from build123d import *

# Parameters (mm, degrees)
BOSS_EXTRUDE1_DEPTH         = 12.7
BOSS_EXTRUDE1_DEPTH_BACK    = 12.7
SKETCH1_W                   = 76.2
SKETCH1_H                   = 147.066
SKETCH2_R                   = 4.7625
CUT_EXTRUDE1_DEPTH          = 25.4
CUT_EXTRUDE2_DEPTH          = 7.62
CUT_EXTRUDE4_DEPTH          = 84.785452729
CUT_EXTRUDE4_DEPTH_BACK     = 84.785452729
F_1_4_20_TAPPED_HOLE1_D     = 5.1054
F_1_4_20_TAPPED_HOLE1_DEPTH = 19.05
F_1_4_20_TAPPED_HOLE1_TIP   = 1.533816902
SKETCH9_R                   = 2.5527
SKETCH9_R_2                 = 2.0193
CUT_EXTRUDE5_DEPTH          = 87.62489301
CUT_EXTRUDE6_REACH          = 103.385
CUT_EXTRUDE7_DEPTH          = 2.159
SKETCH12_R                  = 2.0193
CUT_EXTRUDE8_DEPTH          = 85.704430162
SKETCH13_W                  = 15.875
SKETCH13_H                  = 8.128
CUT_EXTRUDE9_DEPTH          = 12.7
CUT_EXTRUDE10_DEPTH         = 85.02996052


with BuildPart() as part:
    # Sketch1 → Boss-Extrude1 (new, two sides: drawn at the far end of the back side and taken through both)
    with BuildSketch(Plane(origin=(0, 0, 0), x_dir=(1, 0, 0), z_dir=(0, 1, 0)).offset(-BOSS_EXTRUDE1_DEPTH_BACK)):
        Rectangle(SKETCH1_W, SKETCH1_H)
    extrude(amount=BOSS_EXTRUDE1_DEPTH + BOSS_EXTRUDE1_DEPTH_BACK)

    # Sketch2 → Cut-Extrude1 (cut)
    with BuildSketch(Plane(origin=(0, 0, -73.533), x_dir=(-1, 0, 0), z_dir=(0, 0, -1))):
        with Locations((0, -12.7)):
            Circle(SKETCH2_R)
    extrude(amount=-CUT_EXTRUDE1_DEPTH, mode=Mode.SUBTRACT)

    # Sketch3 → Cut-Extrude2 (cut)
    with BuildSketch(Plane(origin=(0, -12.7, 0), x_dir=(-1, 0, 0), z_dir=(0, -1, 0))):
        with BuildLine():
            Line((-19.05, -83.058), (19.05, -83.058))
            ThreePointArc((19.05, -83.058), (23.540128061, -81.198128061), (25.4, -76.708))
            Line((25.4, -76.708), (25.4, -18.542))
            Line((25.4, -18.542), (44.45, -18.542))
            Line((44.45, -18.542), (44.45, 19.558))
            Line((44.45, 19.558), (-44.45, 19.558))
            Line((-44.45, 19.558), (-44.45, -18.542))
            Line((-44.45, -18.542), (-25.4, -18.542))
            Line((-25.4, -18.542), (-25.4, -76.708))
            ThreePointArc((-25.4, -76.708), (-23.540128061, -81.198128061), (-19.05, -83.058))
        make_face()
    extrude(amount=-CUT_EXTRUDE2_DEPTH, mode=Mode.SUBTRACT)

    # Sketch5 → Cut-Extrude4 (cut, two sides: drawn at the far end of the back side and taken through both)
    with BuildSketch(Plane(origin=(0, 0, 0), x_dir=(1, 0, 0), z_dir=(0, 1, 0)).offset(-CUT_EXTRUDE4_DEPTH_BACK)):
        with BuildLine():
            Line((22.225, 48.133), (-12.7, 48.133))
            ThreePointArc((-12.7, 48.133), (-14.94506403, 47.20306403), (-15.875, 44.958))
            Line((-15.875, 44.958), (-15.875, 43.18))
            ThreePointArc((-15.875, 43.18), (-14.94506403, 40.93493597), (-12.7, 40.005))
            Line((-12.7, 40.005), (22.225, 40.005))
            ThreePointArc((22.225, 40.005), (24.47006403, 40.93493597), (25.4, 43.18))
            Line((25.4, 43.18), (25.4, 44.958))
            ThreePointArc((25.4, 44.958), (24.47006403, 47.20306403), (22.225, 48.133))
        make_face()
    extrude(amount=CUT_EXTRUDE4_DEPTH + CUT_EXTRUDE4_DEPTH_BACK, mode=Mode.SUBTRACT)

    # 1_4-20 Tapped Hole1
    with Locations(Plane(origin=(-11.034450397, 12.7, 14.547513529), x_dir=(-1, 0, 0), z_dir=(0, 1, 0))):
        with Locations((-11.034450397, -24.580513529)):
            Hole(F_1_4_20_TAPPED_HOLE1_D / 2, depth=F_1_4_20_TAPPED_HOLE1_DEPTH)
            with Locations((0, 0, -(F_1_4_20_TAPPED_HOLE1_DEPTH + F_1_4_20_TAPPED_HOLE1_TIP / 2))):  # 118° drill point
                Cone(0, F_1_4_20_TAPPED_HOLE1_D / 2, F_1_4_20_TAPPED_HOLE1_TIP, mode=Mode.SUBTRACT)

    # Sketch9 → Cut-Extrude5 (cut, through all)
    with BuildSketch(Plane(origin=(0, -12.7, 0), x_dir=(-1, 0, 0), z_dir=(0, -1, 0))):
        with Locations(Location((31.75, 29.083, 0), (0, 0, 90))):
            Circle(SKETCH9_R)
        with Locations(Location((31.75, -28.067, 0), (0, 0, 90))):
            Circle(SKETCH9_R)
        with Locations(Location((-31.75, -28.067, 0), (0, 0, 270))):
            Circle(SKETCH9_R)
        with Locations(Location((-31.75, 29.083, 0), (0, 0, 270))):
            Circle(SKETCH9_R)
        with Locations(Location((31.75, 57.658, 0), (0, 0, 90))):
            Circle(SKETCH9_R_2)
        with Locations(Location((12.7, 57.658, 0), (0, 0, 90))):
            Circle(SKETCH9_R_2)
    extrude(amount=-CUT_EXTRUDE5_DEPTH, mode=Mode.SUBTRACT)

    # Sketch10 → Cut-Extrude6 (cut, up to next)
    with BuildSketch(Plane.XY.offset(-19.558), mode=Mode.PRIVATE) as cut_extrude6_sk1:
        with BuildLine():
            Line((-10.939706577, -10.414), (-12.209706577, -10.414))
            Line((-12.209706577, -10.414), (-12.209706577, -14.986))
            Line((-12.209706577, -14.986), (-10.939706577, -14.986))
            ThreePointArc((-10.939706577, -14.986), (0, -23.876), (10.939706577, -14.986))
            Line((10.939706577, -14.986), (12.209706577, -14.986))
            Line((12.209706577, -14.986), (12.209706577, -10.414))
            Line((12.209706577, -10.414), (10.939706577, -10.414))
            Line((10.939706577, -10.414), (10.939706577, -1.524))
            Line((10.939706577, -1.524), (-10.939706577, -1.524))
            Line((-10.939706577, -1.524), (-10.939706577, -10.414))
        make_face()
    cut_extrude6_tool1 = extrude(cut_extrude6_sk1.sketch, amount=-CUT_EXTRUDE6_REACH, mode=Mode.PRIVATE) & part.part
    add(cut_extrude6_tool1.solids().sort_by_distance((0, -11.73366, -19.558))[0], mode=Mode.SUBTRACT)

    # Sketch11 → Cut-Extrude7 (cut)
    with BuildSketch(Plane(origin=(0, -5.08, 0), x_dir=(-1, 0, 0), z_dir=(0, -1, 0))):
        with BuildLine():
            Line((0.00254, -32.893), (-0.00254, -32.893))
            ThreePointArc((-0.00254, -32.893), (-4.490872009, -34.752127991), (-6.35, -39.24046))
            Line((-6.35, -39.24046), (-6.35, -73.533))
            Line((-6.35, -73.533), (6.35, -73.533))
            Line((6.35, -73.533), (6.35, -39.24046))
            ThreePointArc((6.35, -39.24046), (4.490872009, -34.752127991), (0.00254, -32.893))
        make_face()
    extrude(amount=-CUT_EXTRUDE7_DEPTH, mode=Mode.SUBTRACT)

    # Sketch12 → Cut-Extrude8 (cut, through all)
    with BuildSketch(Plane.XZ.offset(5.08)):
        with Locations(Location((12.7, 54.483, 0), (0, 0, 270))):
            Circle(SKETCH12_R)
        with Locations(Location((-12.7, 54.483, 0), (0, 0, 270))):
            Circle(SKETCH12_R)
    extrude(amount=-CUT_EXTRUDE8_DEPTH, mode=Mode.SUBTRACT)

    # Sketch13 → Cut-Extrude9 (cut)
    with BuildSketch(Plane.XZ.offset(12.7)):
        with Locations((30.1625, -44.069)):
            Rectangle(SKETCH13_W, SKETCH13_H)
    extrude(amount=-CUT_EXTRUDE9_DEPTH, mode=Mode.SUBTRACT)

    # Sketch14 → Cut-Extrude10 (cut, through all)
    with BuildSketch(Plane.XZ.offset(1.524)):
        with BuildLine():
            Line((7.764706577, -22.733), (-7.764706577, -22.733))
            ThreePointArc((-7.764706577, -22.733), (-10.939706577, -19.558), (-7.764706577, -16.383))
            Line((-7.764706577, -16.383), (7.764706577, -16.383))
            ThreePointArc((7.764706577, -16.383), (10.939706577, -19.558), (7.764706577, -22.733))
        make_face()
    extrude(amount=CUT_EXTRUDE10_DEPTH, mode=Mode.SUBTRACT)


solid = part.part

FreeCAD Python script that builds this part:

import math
import FreeCAD as App
import Part
import Sketcher
from FreeCAD import Vector
Q = App.Units.Quantity


def add_polygon(sketch, points):
    """Adds a closed chain of lines whose ends are joined by coincident constraints."""
    first, n = sketch.GeometryCount, len(points)
    for a, b in zip(points, points[1:] + points[:1]):
        sketch.addGeometry(Part.LineSegment(App.Vector(*a, 0), App.Vector(*b, 0)), False)
    for i in range(n):
        sketch.addConstraint(Sketcher.Constraint("Coincident", first + i, 2, first + (i + 1) % n, 1))

doc = App.newDocument("Part")
body = doc.addObject("PartDesign::Body", "Body")

sketch1 = doc.addObject("Sketcher::SketchObject", "Sketch")
body.addObject(sketch1)
sketch1.AttachmentSupport = (doc.XZ_Plane, [""])
sketch1.MapMode = "FlatFace"
add_polygon(sketch1, [(-38.1, -73.533), (-38.1, 73.533), (38.1, 73.533), (38.1, -73.533)])
sketch1.addConstraint([
    Sketcher.Constraint("Vertical", 0),
    Sketcher.Constraint("Horizontal", 1),
    Sketcher.Constraint("Vertical", 2),
    Sketcher.Constraint("Horizontal", 3),
    Sketcher.Constraint("Symmetric", 0, 2, 2, 2, -1, 1),
    Sketcher.Constraint("DistanceX", 1, 1, 1, 2, Q("3 in")),
    Sketcher.Constraint("DistanceY", 0, 1, 0, 2, Q("5.79 in")),
])
pad1 = doc.addObject("PartDesign::Pad", "Pad")
body.addObject(pad1)
pad1.Profile = sketch1
pad1.Type = "TwoLengths"
pad1.Length = Q("0.5 in")
pad1.Length2 = Q("0.5 in")
pad1.Reversed = True

sketch2 = doc.addObject("Sketcher::SketchObject", "Sketch001")
body.addObject(sketch2)
sketch2.AttachmentSupport = (doc.XY_Plane, [""])
sketch2.MapMode = "FlatFace"
sketch2.AttachmentOffset = App.Placement(Vector(0, 0, -2.895 * 25.4), App.Rotation())
sketch2.addGeometry(Part.Circle(Vector(0, -12.7, 0), Vector(0, 0, 1), 4.7625), False)
sketch2.addConstraint([
    Sketcher.Constraint("PointOnObject", 0, 3, -2),
    Sketcher.Constraint("Diameter", 0, Q("0.375 in")),
    Sketcher.Constraint("DistanceY", 0, 3, -1, 1, Q("0.5 in")),
])
pocket1 = doc.addObject("PartDesign::Pocket", "Pocket")
body.addObject(pocket1)
pocket1.Profile = sketch2
pocket1.Length = Q("1 in")
pocket1.Reversed = True

sketch3 = doc.addObject("Sketcher::SketchObject", "Sketch002")
body.addObject(sketch3)
sketch3.AttachmentSupport = (doc.XZ_Plane, [""])
sketch3.MapMode = "FlatFace"
sketch3.AttachmentOffset = App.Placement(Vector(0, 0, 0.5 * 25.4), App.Rotation())
sketch3.addGeometry([
    Part.LineSegment(Vector(19.05, 83.058, 0), Vector(-19.05, 83.058, 0)),
    Part.ArcOfCircle(Part.Circle(Vector(-19.05, 76.708, 0), Vector(0, 0, 1), 6.35), math.radians(90), math.radians(180)),
    Part.LineSegment(Vector(-25.4, 76.708, 0), Vector(-25.4, 18.542, 0)),
    Part.LineSegment(Vector(-25.4, 18.542, 0), Vector(-44.45, 18.542, 0)),
    Part.LineSegment(Vector(-44.45, 18.542, 0), Vector(-44.45, -19.558, 0)),
    Part.LineSegment(Vector(-44.45, -19.558, 0), Vector(44.45, -19.558, 0)),
    Part.LineSegment(Vector(44.45, -19.558, 0), Vector(44.45, 18.542, 0)),
    Part.LineSegment(Vector(44.45, 18.542, 0), Vector(25.4, 18.542, 0)),
    Part.LineSegment(Vector(25.4, 18.542, 0), Vector(25.4, 76.708, 0)),
    Part.ArcOfCircle(Part.Circle(Vector(19.05, 76.708, 0), Vector(0, 0, 1), 6.35), math.radians(0), math.radians(90)),
], False)
sketch3.addConstraint([
    Sketcher.Constraint("Tangent", 0, 2, 1, 1),
    Sketcher.Constraint("Tangent", 1, 2, 2, 1),
    Sketcher.Constraint("Coincident", 2, 2, 3, 1),
    Sketcher.Constraint("Coincident", 3, 2, 4, 1),
    Sketcher.Constraint("Coincident", 4, 2, 5, 1),
    Sketcher.Constraint("Coincident", 5, 2, 6, 1),
    Sketcher.Constraint("Coincident", 6, 2, 7, 1),
    Sketcher.Constraint("Coincident", 7, 2, 8, 1),
    Sketcher.Constraint("Tangent", 8, 2, 9, 1),
    Sketcher.Constraint("Tangent", 9, 2, 0, 1),
    Sketcher.Constraint("Horizontal", 0),
    Sketcher.Constraint("Vertical", 2),
    Sketcher.Constraint("Horizontal", 3),
    Sketcher.Constraint("Vertical", 4),
    Sketcher.Constraint("Horizontal", 5),
    Sketcher.Constraint("Vertical", 6),
    Sketcher.Constraint("Horizontal", 7),
    Sketcher.Constraint("Vertical", 8),
    Sketcher.Constraint("Equal", 1, 9),
    Sketcher.Constraint("Symmetric", 3, 2, 6, 2, -2),
    Sketcher.Constraint("Equal", 3, 7),
    Sketcher.Constraint("Equal", 0, 4),
    Sketcher.Constraint("Radius", 1, Q("0.25 in")),
    Sketcher.Constraint("DistanceX", 0, 2, 0, 1, Q("1.5 in")),
    Sketcher.Constraint("DistanceX", 5, 1, 5, 2, Q("3.5 in")),
    Sketcher.Constraint("DistanceY", 2, 2, 2, 1, Q("2.29 in")),
    Sketcher.Constraint("DistanceY", -1, 1, 1, 3, Q("3.02 in")),
])
pocket2 = doc.addObject("PartDesign::Pocket", "Pocket001")
body.addObject(pocket2)
pocket2.Profile = sketch3
pocket2.Length = Q("0.3 in")

sketch4 = doc.addObject("Sketcher::SketchObject", "Sketch003")
body.addObject(sketch4)
sketch4.AttachmentSupport = (doc.XZ_Plane, [""])
sketch4.MapMode = "FlatFace"
sketch4.addGeometry([
    Part.LineSegment(Vector(22.225, -48.133, 0), Vector(-12.7, -48.133, 0)),
    Part.ArcOfCircle(Part.Circle(Vector(-12.7, -44.958, 0), Vector(0, 0, 1), 3.175), math.radians(-180), math.radians(-90)),
    Part.LineSegment(Vector(-15.875, -44.958, 0), Vector(-15.875, -43.18, 0)),
    Part.ArcOfCircle(Part.Circle(Vector(-12.7, -43.18, 0), Vector(0, 0, 1), 3.175), math.radians(90), math.radians(180)),
    Part.LineSegment(Vector(-12.7, -40.005, 0), Vector(22.225, -40.005, 0)),
    Part.ArcOfCircle(Part.Circle(Vector(22.225, -43.18, 0), Vector(0, 0, 1), 3.175), math.radians(0), math.radians(90)),
    Part.LineSegment(Vector(25.4, -43.18, 0), Vector(25.4, -44.958, 0)),
    Part.ArcOfCircle(Part.Circle(Vector(22.225, -44.958, 0), Vector(0, 0, 1), 3.175), math.radians(-90), math.radians(0)),
], False)
sketch4.addConstraint([
    Sketcher.Constraint("Tangent", 0, 2, 1, 2),
    Sketcher.Constraint("Tangent", 1, 1, 2, 1),
    Sketcher.Constraint("Tangent", 2, 2, 3, 2),
    Sketcher.Constraint("Tangent", 3, 1, 4, 1),
    Sketcher.Constraint("Tangent", 4, 2, 5, 2),
    Sketcher.Constraint("Tangent", 5, 1, 6, 1),
    Sketcher.Constraint("Tangent", 6, 2, 7, 2),
    Sketcher.Constraint("Tangent", 7, 1, 0, 1),
    Sketcher.Constraint("Horizontal", 0),
    Sketcher.Constraint("Vertical", 2),
    Sketcher.Constraint("Horizontal", 4),
    Sketcher.Constraint("Vertical", 6),
    Sketcher.Constraint("Equal", 1, 3),
    Sketcher.Constraint("Equal", 3, 5),
    Sketcher.Constraint("Equal", 5, 7),
    Sketcher.Constraint("DistanceX", -1, 1, 5, 1, Q("1 in")),
    Sketcher.Constraint("Radius", 1, Q("0.125 in")),
    Sketcher.Constraint("DistanceY", 2, 1, 2, 2, Q("0.07 in")),
    Sketcher.Constraint("DistanceX", 1, 3, -1, 1, Q("0.5 in")),
    Sketcher.Constraint("DistanceY", 3, 3, -1, 1, Q("1.7 in")),
])
pocket3 = doc.addObject("PartDesign::Pocket", "Pocket002")
body.addObject(pocket3)
pocket3.Profile = sketch4
pocket3.Type = "ThroughAll"
pocket3.Midplane = True

sketch5 = doc.addObject("Sketcher::SketchObject", "Sketch004")
body.addObject(sketch5)
sketch5.AttachmentSupport = (doc.XZ_Plane, [""])
sketch5.MapMode = "FlatFace"
sketch5.AttachmentOffset = App.Placement(Vector(0, 0, -0.5 * 25.4), App.Rotation())
sketch5.addGeometry(Part.Circle(Vector(0, -10.033, 0), Vector(0, 0, 1), 2.5527), False)
sketch5.addConstraint([
    Sketcher.Constraint("PointOnObject", 0, 3, -2),
    Sketcher.Constraint("Diameter", 0, Q("0.201 in")),
    Sketcher.Constraint("DistanceY", 0, 3, -1, 1, Q("0.395 in")),
])
doc.recompute()
hole = doc.addObject("PartDesign::Hole", "Hole")
body.addObject(hole)
hole.Profile = sketch5
hole.ThreadType = "None"
hole.Diameter = Q("0.201 in")
hole.DepthType = "Dimension"
hole.Depth = Q("0.75 in")
hole.DrillPoint = "Angled"
hole.DrillPointAngle = 118
hole.Reversed = True

sketch6 = doc.addObject("Sketcher::SketchObject", "Sketch005")
body.addObject(sketch6)
sketch6.AttachmentSupport = (doc.XZ_Plane, [""])
sketch6.MapMode = "FlatFace"
sketch6.AttachmentOffset = App.Placement(Vector(0, 0, 0.5 * 25.4), App.Rotation())
sketch6.addGeometry([
    Part.Circle(Vector(-31.75, -29.083, 0), Vector(0, 0, 1), 2.5527),
    Part.Circle(Vector(-31.75, 28.067, 0), Vector(0, 0, 1), 2.5527),
    Part.Circle(Vector(31.75, 28.067, 0), Vector(0, 0, 1), 2.5527),
    Part.Circle(Vector(31.75, -29.083, 0), Vector(0, 0, 1), 2.5527),
    Part.Circle(Vector(-31.75, -57.658, 0), Vector(0, 0, 1), 2.0193),
    Part.Circle(Vector(-12.7, -57.658, 0), Vector(0, 0, 1), 2.0193),
], False)
sketch6.addConstraint([
    Sketcher.Constraint("Equal", 0, 1),
    Sketcher.Constraint("Equal", 1, 2),
    Sketcher.Constraint("Equal", 2, 3),
    Sketcher.Constraint("Equal", 4, 5),
    Sketcher.Constraint("Symmetric", 1, 3, 2, 3, -2),
    Sketcher.Constraint("Symmetric", 0, 3, 3, 3, -2),
    Sketcher.Constraint("Horizontal", 4, 3, 5, 3),
    Sketcher.Constraint("Vertical", 0, 3, 1, 3),
    Sketcher.Constraint("Vertical", 1, 3, 4, 3),
    Sketcher.Constraint("Diameter", 0, Q("0.201 in")),
    Sketcher.Constraint("Diameter", 4, Q("0.159 in")),
    Sketcher.Constraint("DistanceX", 5, 3, -1, 1, Q("0.5 in")),
    Sketcher.Constraint("DistanceX", 1, 3, 2, 3, Q("2.5 in")),
    Sketcher.Constraint("DistanceY", 4, 3, -1, 1, Q("2.27 in")),
    Sketcher.Constraint("DistanceY", 0, 3, 1, 3, Q("2.25 in")),
    Sketcher.Constraint("DistanceY", 0, 3, -1, 1, Q("1.145 in")),
])
pocket4 = doc.addObject("PartDesign::Pocket", "Pocket003")
body.addObject(pocket4)
pocket4.Profile = sketch6
pocket4.Type = "ThroughAll"

sketch7 = doc.addObject("Sketcher::SketchObject", "Sketch006")
body.addObject(sketch7)
sketch7.AttachmentSupport = (doc.XY_Plane, [""])
sketch7.MapMode = "FlatFace"
sketch7.AttachmentOffset = App.Placement(Vector(0, 0, -0.77 * 25.4), App.Rotation())
sketch7.addGeometry([
    Part.LineSegment(Vector(-10.939707, -10.414, 0), Vector(-12.209707, -10.414, 0)),
    Part.LineSegment(Vector(-12.209707, -10.414, 0), Vector(-12.209707, -14.986, 0)),
    Part.LineSegment(Vector(-12.209707, -14.986, 0), Vector(-10.939707, -14.986, 0)),
    Part.ArcOfCircle(Part.Circle(Vector(0, -12.7, 0), Vector(0, 0, 1), 11.176), math.radians(-168.197108), math.radians(-11.802892)),
    Part.LineSegment(Vector(10.939707, -14.986, 0), Vector(12.209707, -14.986, 0)),
    Part.LineSegment(Vector(12.209707, -14.986, 0), Vector(12.209707, -10.414, 0)),
    Part.LineSegment(Vector(12.209707, -10.414, 0), Vector(10.939707, -10.414, 0)),
    Part.LineSegment(Vector(10.939707, -10.414, 0), Vector(10.939707, -1.524, 0)),
    Part.LineSegment(Vector(10.939707, -1.524, 0), Vector(-10.939707, -1.524, 0)),
    Part.LineSegment(Vector(-10.939707, -1.524, 0), Vector(-10.939707, -10.414, 0)),
], False)
sketch7.addConstraint([
    Sketcher.Constraint("Coincident", 0, 2, 1, 1),
    Sketcher.Constraint("Coincident", 1, 2, 2, 1),
    Sketcher.Constraint("Coincident", 2, 2, 3, 1),
    Sketcher.Constraint("Coincident", 3, 2, 4, 1),
    Sketcher.Constraint("Coincident", 4, 2, 5, 1),
    Sketcher.Constraint("Coincident", 5, 2, 6, 1),
    Sketcher.Constraint("Coincident", 6, 2, 7, 1),
    Sketcher.Constraint("Coincident", 7, 2, 8, 1),
    Sketcher.Constraint("Coincident", 8, 2, 9, 1),
    Sketcher.Constraint("Coincident", 9, 2, 0, 1),
    Sketcher.Constraint("Horizontal", 0),
    Sketcher.Constraint("Vertical", 1),
    Sketcher.Constraint("Horizontal", 2),
    Sketcher.Constraint("Horizontal", 4),
    Sketcher.Constraint("Vertical", 5),
    Sketcher.Constraint("Horizontal", 6),
    Sketcher.Constraint("Vertical", 7),
    Sketcher.Constraint("Horizontal", 8),
    Sketcher.Constraint("Vertical", 9),
    Sketcher.Constraint("Symmetric", 2, 2, 3, 2, -2),
    Sketcher.Constraint("Symmetric", 0, 2, 5, 2, -2),
    Sketcher.Constraint("Vertical", 3, 2, 6, 2),
    Sketcher.Constraint("Vertical", 2, 2, 8, 2),
    Sketcher.Constraint("Radius", 3, Q("0.44 in")),
    Sketcher.Constraint("DistanceX", 0, 2, 0, 1, Q("0.05 in")),
    Sketcher.Constraint("DistanceY", 1, 2, 1, 1, Q("0.18 in")),
    Sketcher.Constraint("DistanceY", 7, 1, 7, 2, Q("0.35 in")),
    Sketcher.Constraint("DistanceY", 3, 3, -1, 1, Q("0.5 in")),
    Sketcher.Constraint("DistanceY", 0, 2, -1, 1, Q("0.41 in")),
])
pocket5 = doc.addObject("PartDesign::Pocket", "Pocket004")
body.addObject(pocket5)
pocket5.Profile = sketch7
pocket5.Type = "UpToFirst"

sketch8 = doc.addObject("Sketcher::SketchObject", "Sketch007")
body.addObject(sketch8)
sketch8.AttachmentSupport = (doc.XZ_Plane, [""])
sketch8.MapMode = "FlatFace"
sketch8.AttachmentOffset = App.Placement(Vector(0, 0, 0.2 * 25.4), App.Rotation())
sketch8.addGeometry([
    Part.LineSegment(Vector(-0.00254, 32.893, 0), Vector(0.00254, 32.893, 0)),
    Part.ArcOfCircle(Part.Circle(Vector(0.00254, 39.24046, 0), Vector(0, 0, 1), 6.34746), math.radians(-90), math.radians(0)),
    Part.LineSegment(Vector(6.35, 39.24046, 0), Vector(6.35, 73.533, 0)),
    Part.LineSegment(Vector(6.35, 73.533, 0), Vector(-6.35, 73.533, 0)),
    Part.LineSegment(Vector(-6.35, 73.533, 0), Vector(-6.35, 39.24046, 0)),
    Part.ArcOfCircle(Part.Circle(Vector(-0.00254, 39.24046, 0), Vector(0, 0, 1), 6.34746), math.radians(-180), math.radians(-90)),
], False)
sketch8.addConstraint([
    Sketcher.Constraint("Tangent", 0, 2, 1, 1),
    Sketcher.Constraint("Tangent", 1, 2, 2, 1),
    Sketcher.Constraint("Coincident", 2, 2, 3, 1),
    Sketcher.Constraint("Coincident", 3, 2, 4, 1),
    Sketcher.Constraint("Tangent", 4, 2, 5, 1),
    Sketcher.Constraint("Coincident", 5, 2, 0, 1),
    Sketcher.Constraint("Vertical", 2),
    Sketcher.Constraint("Horizontal", 3),
    Sketcher.Constraint("Vertical", 4),
    Sketcher.Constraint("Equal", 1, 5),
    Sketcher.Constraint("Vertical", 1, 3, 0, 2),
    Sketcher.Constraint("DistanceX", 3, 2, 3, 1, Q("0.5 in")),
    Sketcher.Constraint("Radius", 1, Q("0.2499 in")),
    Sketcher.Constraint("DistanceY", 0, 2, 2, 2, Q("1.6 in")),
    Sketcher.Constraint("DistanceX", -1, 1, 1, 2, Q("0.25 in")),
    Sketcher.Constraint("DistanceX", 0, 1, 0, 2, Q("0.0002 in")),
    Sketcher.Constraint("DistanceY", -1, 1, 0, 2, Q("1.295 in")),
])
pocket6 = doc.addObject("PartDesign::Pocket", "Pocket005")
body.addObject(pocket6)
pocket6.Profile = sketch8
pocket6.Length = Q("0.085 in")

sketch9 = doc.addObject("Sketcher::SketchObject", "Sketch008")
body.addObject(sketch9)
sketch9.AttachmentSupport = (doc.XZ_Plane, [""])
sketch9.MapMode = "FlatFace"
sketch9.AttachmentOffset = App.Placement(Vector(0, 0, 0.2 * 25.4), App.Rotation())
sketch9.addGeometry([
    Part.Circle(Vector(12.7, 54.483, 0), Vector(0, 0, 1), 2.0193),
    Part.Circle(Vector(-12.7, 54.483, 0), Vector(0, 0, 1), 2.0193),
], False)
sketch9.addConstraint([
    Sketcher.Constraint("Equal", 0, 1),
    Sketcher.Constraint("Symmetric", 0, 3, 1, 3, -2),
    Sketcher.Constraint("Diameter", 0, Q("0.159 in")),
    Sketcher.Constraint("DistanceX", 1, 3, 0, 3, Q("1 in")),
    Sketcher.Constraint("DistanceY", -1, 1, 0, 3, Q("2.145 in")),
])
pocket7 = doc.addObject("PartDesign::Pocket", "Pocket006")
body.addObject(pocket7)
pocket7.Profile = sketch9
pocket7.Type = "ThroughAll"

sketch10 = doc.addObject("Sketcher::SketchObject", "Sketch009")
body.addObject(sketch10)
sketch10.AttachmentSupport = (doc.XZ_Plane, [""])
sketch10.MapMode = "FlatFace"
sketch10.AttachmentOffset = App.Placement(Vector(0, 0, 0.5 * 25.4), App.Rotation())
add_polygon(sketch10, [(22.225, -40.005), (22.225, -48.133), (38.1, -48.133), (38.1, -40.005)])
sketch10.addConstraint([
    Sketcher.Constraint("Vertical", 0),
    Sketcher.Constraint("Horizontal", 1),
    Sketcher.Constraint("Vertical", 2),
    Sketcher.Constraint("Horizontal", 3),
    Sketcher.Constraint("DistanceY", 0, 2, 0, 1, Q("0.32 in")),
    Sketcher.Constraint("DistanceX", -1, 1, 1, 2, Q("1.5 in")),
    Sketcher.Constraint("DistanceX", 1, 1, 1, 2, Q("0.625 in")),
    Sketcher.Constraint("DistanceY", 0, 2, -1, 1, Q("1.895 in")),
])
pocket8 = doc.addObject("PartDesign::Pocket", "Pocket007")
body.addObject(pocket8)
pocket8.Profile = sketch10
pocket8.Length = Q("0.5 in")

sketch11 = doc.addObject("Sketcher::SketchObject", "Sketch010")
body.addObject(sketch11)
sketch11.AttachmentSupport = (doc.XZ_Plane, [""])
sketch11.MapMode = "FlatFace"
sketch11.AttachmentOffset = App.Placement(Vector(0, 0, 0.06 * 25.4), App.Rotation())
sketch11.addGeometry([
    Part.LineSegment(Vector(-7.764707, -22.733, 0), Vector(7.764707, -22.733, 0)),
    Part.ArcOfCircle(Part.Circle(Vector(7.764707, -19.558, 0), Vector(0, 0, 1), 3.175), math.radians(-90), math.radians(90)),
    Part.LineSegment(Vector(7.764707, -16.383, 0), Vector(-7.764707, -16.383, 0)),
    Part.ArcOfCircle(Part.Circle(Vector(-7.764707, -19.558, 0), Vector(0, 0, 1), 3.175), math.radians(90), math.radians(270)),
], False)
sketch11.addConstraint([
    Sketcher.Constraint("Tangent", 0, 2, 1, 1),
    Sketcher.Constraint("Tangent", 1, 2, 2, 1),
    Sketcher.Constraint("Tangent", 2, 2, 3, 1),
    Sketcher.Constraint("Tangent", 3, 2, 0, 1),
    Sketcher.Constraint("Horizontal", 0),
    Sketcher.Constraint("Horizontal", 2),
    Sketcher.Constraint("Radius", 1, Q("0.125 in")),
    Sketcher.Constraint("DistanceY", 1, 3, -1, 1, Q("0.77 in")),
    Sketcher.Constraint("DistanceX", 0, 1, 0, 2, Q("15.529413 mm")),
    Sketcher.Constraint("DistanceX", -1, 1, 1, 3, Q("7.764707 mm")),
])
pocket9 = doc.addObject("PartDesign::Pocket", "Pocket008")
body.addObject(pocket9)
pocket9.Profile = sketch11
pocket9.Type = "ThroughAll"
pocket9.Reversed = True

doc.recompute()
